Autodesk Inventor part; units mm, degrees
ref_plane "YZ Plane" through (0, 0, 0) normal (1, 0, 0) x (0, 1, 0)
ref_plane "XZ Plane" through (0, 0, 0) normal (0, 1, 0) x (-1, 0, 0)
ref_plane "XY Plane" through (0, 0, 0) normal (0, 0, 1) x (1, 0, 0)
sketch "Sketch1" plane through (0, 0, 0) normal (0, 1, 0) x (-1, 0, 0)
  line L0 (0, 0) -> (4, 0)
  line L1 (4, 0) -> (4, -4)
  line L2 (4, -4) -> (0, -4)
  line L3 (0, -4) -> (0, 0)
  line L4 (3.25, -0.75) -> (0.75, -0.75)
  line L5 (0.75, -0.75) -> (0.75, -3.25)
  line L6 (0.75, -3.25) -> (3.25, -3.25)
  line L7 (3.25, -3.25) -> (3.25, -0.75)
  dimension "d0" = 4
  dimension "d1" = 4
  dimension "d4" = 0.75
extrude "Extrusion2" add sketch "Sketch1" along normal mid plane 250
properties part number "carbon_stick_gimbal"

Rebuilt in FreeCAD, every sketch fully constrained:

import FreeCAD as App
import Part
import Sketcher

doc = App.newDocument("Part")
body = doc.addObject("PartDesign::Body", "Body")

# Sketch on XZ plane
sketch1 = body.newObject("Sketcher::SketchObject", "Sketch")
sketch1.AttachmentSupport = (doc.getObject("XZ_Plane"), [""])
sketch1.MapMode = "FlatFace"
sketch1.addGeometry(Part.LineSegment(App.Vector(-4, 0, 0), App.Vector(0, 0, 0)), False)
sketch1.addGeometry(Part.LineSegment(App.Vector(0, 0, 0), App.Vector(0, -4, 0)), False)
sketch1.addGeometry(Part.LineSegment(App.Vector(0, -4, 0), App.Vector(-4, -4, 0)), False)
sketch1.addGeometry(Part.LineSegment(App.Vector(-4, -4, 0), App.Vector(-4, 0, 0)), False)
sketch1.addGeometry(Part.LineSegment(App.Vector(-0.8, -0.8, 0), App.Vector(-3.2, -0.8, 0)), False)
sketch1.addGeometry(Part.LineSegment(App.Vector(-3.2, -0.8, 0), App.Vector(-3.2, -3.2, 0)), False)
sketch1.addGeometry(Part.LineSegment(App.Vector(-3.2, -3.2, 0), App.Vector(-0.8, -3.2, 0)), False)
sketch1.addGeometry(Part.LineSegment(App.Vector(-0.8, -3.2, 0), App.Vector(-0.8, -0.8, 0)), False)
sketch1.addConstraint(Sketcher.Constraint("Coincident", 0, 2, 1, 1))
sketch1.addConstraint(Sketcher.Constraint("Coincident", 1, 2, 2, 1))
sketch1.addConstraint(Sketcher.Constraint("Coincident", 2, 2, 3, 1))
sketch1.addConstraint(Sketcher.Constraint("Coincident", 3, 2, 0, 1))
sketch1.addConstraint(Sketcher.Constraint("Coincident", 4, 2, 5, 1))
sketch1.addConstraint(Sketcher.Constraint("Coincident", 5, 2, 6, 1))
sketch1.addConstraint(Sketcher.Constraint("Coincident", 6, 2, 7, 1))
sketch1.addConstraint(Sketcher.Constraint("Coincident", 7, 2, 4, 1))
sketch1.addConstraint(Sketcher.Constraint("Horizontal", 0))
sketch1.addConstraint(Sketcher.Constraint("Vertical", 1))
sketch1.addConstraint(Sketcher.Constraint("Horizontal", 2))
sketch1.addConstraint(Sketcher.Constraint("Vertical", 3))
sketch1.addConstraint(Sketcher.Constraint("Horizontal", 4))
sketch1.addConstraint(Sketcher.Constraint("Vertical", 5))
sketch1.addConstraint(Sketcher.Constraint("Horizontal", 6))
sketch1.addConstraint(Sketcher.Constraint("Vertical", 7))
sketch1.addConstraint(Sketcher.Constraint("Coincident", 0, 2, -1, 1))
sketch1.addConstraint(Sketcher.Constraint("Equal", 2, 1))
sketch1.addConstraint(Sketcher.Constraint("Equal", 6, 5))
sketch1.addConstraint(Sketcher.Constraint("DistanceX", 0, 1, 0, 2, 4.0))
sketch1.addConstraint(Sketcher.Constraint("DistanceY", 4, 2, -1, 1, 0.75))
sketch1.addConstraint(Sketcher.Constraint("DistanceX", 6, 2, -1, 1, 0.75))
sketch1.addConstraint(Sketcher.Constraint("DistanceX", 3, 2, 4, 2, 0.75))
pad1 = body.newObject("PartDesign::Pad", "Pad")
pad1.Profile = sketch1
pad1.Length = 250
pad1.Midplane = True

doc.recompute()
